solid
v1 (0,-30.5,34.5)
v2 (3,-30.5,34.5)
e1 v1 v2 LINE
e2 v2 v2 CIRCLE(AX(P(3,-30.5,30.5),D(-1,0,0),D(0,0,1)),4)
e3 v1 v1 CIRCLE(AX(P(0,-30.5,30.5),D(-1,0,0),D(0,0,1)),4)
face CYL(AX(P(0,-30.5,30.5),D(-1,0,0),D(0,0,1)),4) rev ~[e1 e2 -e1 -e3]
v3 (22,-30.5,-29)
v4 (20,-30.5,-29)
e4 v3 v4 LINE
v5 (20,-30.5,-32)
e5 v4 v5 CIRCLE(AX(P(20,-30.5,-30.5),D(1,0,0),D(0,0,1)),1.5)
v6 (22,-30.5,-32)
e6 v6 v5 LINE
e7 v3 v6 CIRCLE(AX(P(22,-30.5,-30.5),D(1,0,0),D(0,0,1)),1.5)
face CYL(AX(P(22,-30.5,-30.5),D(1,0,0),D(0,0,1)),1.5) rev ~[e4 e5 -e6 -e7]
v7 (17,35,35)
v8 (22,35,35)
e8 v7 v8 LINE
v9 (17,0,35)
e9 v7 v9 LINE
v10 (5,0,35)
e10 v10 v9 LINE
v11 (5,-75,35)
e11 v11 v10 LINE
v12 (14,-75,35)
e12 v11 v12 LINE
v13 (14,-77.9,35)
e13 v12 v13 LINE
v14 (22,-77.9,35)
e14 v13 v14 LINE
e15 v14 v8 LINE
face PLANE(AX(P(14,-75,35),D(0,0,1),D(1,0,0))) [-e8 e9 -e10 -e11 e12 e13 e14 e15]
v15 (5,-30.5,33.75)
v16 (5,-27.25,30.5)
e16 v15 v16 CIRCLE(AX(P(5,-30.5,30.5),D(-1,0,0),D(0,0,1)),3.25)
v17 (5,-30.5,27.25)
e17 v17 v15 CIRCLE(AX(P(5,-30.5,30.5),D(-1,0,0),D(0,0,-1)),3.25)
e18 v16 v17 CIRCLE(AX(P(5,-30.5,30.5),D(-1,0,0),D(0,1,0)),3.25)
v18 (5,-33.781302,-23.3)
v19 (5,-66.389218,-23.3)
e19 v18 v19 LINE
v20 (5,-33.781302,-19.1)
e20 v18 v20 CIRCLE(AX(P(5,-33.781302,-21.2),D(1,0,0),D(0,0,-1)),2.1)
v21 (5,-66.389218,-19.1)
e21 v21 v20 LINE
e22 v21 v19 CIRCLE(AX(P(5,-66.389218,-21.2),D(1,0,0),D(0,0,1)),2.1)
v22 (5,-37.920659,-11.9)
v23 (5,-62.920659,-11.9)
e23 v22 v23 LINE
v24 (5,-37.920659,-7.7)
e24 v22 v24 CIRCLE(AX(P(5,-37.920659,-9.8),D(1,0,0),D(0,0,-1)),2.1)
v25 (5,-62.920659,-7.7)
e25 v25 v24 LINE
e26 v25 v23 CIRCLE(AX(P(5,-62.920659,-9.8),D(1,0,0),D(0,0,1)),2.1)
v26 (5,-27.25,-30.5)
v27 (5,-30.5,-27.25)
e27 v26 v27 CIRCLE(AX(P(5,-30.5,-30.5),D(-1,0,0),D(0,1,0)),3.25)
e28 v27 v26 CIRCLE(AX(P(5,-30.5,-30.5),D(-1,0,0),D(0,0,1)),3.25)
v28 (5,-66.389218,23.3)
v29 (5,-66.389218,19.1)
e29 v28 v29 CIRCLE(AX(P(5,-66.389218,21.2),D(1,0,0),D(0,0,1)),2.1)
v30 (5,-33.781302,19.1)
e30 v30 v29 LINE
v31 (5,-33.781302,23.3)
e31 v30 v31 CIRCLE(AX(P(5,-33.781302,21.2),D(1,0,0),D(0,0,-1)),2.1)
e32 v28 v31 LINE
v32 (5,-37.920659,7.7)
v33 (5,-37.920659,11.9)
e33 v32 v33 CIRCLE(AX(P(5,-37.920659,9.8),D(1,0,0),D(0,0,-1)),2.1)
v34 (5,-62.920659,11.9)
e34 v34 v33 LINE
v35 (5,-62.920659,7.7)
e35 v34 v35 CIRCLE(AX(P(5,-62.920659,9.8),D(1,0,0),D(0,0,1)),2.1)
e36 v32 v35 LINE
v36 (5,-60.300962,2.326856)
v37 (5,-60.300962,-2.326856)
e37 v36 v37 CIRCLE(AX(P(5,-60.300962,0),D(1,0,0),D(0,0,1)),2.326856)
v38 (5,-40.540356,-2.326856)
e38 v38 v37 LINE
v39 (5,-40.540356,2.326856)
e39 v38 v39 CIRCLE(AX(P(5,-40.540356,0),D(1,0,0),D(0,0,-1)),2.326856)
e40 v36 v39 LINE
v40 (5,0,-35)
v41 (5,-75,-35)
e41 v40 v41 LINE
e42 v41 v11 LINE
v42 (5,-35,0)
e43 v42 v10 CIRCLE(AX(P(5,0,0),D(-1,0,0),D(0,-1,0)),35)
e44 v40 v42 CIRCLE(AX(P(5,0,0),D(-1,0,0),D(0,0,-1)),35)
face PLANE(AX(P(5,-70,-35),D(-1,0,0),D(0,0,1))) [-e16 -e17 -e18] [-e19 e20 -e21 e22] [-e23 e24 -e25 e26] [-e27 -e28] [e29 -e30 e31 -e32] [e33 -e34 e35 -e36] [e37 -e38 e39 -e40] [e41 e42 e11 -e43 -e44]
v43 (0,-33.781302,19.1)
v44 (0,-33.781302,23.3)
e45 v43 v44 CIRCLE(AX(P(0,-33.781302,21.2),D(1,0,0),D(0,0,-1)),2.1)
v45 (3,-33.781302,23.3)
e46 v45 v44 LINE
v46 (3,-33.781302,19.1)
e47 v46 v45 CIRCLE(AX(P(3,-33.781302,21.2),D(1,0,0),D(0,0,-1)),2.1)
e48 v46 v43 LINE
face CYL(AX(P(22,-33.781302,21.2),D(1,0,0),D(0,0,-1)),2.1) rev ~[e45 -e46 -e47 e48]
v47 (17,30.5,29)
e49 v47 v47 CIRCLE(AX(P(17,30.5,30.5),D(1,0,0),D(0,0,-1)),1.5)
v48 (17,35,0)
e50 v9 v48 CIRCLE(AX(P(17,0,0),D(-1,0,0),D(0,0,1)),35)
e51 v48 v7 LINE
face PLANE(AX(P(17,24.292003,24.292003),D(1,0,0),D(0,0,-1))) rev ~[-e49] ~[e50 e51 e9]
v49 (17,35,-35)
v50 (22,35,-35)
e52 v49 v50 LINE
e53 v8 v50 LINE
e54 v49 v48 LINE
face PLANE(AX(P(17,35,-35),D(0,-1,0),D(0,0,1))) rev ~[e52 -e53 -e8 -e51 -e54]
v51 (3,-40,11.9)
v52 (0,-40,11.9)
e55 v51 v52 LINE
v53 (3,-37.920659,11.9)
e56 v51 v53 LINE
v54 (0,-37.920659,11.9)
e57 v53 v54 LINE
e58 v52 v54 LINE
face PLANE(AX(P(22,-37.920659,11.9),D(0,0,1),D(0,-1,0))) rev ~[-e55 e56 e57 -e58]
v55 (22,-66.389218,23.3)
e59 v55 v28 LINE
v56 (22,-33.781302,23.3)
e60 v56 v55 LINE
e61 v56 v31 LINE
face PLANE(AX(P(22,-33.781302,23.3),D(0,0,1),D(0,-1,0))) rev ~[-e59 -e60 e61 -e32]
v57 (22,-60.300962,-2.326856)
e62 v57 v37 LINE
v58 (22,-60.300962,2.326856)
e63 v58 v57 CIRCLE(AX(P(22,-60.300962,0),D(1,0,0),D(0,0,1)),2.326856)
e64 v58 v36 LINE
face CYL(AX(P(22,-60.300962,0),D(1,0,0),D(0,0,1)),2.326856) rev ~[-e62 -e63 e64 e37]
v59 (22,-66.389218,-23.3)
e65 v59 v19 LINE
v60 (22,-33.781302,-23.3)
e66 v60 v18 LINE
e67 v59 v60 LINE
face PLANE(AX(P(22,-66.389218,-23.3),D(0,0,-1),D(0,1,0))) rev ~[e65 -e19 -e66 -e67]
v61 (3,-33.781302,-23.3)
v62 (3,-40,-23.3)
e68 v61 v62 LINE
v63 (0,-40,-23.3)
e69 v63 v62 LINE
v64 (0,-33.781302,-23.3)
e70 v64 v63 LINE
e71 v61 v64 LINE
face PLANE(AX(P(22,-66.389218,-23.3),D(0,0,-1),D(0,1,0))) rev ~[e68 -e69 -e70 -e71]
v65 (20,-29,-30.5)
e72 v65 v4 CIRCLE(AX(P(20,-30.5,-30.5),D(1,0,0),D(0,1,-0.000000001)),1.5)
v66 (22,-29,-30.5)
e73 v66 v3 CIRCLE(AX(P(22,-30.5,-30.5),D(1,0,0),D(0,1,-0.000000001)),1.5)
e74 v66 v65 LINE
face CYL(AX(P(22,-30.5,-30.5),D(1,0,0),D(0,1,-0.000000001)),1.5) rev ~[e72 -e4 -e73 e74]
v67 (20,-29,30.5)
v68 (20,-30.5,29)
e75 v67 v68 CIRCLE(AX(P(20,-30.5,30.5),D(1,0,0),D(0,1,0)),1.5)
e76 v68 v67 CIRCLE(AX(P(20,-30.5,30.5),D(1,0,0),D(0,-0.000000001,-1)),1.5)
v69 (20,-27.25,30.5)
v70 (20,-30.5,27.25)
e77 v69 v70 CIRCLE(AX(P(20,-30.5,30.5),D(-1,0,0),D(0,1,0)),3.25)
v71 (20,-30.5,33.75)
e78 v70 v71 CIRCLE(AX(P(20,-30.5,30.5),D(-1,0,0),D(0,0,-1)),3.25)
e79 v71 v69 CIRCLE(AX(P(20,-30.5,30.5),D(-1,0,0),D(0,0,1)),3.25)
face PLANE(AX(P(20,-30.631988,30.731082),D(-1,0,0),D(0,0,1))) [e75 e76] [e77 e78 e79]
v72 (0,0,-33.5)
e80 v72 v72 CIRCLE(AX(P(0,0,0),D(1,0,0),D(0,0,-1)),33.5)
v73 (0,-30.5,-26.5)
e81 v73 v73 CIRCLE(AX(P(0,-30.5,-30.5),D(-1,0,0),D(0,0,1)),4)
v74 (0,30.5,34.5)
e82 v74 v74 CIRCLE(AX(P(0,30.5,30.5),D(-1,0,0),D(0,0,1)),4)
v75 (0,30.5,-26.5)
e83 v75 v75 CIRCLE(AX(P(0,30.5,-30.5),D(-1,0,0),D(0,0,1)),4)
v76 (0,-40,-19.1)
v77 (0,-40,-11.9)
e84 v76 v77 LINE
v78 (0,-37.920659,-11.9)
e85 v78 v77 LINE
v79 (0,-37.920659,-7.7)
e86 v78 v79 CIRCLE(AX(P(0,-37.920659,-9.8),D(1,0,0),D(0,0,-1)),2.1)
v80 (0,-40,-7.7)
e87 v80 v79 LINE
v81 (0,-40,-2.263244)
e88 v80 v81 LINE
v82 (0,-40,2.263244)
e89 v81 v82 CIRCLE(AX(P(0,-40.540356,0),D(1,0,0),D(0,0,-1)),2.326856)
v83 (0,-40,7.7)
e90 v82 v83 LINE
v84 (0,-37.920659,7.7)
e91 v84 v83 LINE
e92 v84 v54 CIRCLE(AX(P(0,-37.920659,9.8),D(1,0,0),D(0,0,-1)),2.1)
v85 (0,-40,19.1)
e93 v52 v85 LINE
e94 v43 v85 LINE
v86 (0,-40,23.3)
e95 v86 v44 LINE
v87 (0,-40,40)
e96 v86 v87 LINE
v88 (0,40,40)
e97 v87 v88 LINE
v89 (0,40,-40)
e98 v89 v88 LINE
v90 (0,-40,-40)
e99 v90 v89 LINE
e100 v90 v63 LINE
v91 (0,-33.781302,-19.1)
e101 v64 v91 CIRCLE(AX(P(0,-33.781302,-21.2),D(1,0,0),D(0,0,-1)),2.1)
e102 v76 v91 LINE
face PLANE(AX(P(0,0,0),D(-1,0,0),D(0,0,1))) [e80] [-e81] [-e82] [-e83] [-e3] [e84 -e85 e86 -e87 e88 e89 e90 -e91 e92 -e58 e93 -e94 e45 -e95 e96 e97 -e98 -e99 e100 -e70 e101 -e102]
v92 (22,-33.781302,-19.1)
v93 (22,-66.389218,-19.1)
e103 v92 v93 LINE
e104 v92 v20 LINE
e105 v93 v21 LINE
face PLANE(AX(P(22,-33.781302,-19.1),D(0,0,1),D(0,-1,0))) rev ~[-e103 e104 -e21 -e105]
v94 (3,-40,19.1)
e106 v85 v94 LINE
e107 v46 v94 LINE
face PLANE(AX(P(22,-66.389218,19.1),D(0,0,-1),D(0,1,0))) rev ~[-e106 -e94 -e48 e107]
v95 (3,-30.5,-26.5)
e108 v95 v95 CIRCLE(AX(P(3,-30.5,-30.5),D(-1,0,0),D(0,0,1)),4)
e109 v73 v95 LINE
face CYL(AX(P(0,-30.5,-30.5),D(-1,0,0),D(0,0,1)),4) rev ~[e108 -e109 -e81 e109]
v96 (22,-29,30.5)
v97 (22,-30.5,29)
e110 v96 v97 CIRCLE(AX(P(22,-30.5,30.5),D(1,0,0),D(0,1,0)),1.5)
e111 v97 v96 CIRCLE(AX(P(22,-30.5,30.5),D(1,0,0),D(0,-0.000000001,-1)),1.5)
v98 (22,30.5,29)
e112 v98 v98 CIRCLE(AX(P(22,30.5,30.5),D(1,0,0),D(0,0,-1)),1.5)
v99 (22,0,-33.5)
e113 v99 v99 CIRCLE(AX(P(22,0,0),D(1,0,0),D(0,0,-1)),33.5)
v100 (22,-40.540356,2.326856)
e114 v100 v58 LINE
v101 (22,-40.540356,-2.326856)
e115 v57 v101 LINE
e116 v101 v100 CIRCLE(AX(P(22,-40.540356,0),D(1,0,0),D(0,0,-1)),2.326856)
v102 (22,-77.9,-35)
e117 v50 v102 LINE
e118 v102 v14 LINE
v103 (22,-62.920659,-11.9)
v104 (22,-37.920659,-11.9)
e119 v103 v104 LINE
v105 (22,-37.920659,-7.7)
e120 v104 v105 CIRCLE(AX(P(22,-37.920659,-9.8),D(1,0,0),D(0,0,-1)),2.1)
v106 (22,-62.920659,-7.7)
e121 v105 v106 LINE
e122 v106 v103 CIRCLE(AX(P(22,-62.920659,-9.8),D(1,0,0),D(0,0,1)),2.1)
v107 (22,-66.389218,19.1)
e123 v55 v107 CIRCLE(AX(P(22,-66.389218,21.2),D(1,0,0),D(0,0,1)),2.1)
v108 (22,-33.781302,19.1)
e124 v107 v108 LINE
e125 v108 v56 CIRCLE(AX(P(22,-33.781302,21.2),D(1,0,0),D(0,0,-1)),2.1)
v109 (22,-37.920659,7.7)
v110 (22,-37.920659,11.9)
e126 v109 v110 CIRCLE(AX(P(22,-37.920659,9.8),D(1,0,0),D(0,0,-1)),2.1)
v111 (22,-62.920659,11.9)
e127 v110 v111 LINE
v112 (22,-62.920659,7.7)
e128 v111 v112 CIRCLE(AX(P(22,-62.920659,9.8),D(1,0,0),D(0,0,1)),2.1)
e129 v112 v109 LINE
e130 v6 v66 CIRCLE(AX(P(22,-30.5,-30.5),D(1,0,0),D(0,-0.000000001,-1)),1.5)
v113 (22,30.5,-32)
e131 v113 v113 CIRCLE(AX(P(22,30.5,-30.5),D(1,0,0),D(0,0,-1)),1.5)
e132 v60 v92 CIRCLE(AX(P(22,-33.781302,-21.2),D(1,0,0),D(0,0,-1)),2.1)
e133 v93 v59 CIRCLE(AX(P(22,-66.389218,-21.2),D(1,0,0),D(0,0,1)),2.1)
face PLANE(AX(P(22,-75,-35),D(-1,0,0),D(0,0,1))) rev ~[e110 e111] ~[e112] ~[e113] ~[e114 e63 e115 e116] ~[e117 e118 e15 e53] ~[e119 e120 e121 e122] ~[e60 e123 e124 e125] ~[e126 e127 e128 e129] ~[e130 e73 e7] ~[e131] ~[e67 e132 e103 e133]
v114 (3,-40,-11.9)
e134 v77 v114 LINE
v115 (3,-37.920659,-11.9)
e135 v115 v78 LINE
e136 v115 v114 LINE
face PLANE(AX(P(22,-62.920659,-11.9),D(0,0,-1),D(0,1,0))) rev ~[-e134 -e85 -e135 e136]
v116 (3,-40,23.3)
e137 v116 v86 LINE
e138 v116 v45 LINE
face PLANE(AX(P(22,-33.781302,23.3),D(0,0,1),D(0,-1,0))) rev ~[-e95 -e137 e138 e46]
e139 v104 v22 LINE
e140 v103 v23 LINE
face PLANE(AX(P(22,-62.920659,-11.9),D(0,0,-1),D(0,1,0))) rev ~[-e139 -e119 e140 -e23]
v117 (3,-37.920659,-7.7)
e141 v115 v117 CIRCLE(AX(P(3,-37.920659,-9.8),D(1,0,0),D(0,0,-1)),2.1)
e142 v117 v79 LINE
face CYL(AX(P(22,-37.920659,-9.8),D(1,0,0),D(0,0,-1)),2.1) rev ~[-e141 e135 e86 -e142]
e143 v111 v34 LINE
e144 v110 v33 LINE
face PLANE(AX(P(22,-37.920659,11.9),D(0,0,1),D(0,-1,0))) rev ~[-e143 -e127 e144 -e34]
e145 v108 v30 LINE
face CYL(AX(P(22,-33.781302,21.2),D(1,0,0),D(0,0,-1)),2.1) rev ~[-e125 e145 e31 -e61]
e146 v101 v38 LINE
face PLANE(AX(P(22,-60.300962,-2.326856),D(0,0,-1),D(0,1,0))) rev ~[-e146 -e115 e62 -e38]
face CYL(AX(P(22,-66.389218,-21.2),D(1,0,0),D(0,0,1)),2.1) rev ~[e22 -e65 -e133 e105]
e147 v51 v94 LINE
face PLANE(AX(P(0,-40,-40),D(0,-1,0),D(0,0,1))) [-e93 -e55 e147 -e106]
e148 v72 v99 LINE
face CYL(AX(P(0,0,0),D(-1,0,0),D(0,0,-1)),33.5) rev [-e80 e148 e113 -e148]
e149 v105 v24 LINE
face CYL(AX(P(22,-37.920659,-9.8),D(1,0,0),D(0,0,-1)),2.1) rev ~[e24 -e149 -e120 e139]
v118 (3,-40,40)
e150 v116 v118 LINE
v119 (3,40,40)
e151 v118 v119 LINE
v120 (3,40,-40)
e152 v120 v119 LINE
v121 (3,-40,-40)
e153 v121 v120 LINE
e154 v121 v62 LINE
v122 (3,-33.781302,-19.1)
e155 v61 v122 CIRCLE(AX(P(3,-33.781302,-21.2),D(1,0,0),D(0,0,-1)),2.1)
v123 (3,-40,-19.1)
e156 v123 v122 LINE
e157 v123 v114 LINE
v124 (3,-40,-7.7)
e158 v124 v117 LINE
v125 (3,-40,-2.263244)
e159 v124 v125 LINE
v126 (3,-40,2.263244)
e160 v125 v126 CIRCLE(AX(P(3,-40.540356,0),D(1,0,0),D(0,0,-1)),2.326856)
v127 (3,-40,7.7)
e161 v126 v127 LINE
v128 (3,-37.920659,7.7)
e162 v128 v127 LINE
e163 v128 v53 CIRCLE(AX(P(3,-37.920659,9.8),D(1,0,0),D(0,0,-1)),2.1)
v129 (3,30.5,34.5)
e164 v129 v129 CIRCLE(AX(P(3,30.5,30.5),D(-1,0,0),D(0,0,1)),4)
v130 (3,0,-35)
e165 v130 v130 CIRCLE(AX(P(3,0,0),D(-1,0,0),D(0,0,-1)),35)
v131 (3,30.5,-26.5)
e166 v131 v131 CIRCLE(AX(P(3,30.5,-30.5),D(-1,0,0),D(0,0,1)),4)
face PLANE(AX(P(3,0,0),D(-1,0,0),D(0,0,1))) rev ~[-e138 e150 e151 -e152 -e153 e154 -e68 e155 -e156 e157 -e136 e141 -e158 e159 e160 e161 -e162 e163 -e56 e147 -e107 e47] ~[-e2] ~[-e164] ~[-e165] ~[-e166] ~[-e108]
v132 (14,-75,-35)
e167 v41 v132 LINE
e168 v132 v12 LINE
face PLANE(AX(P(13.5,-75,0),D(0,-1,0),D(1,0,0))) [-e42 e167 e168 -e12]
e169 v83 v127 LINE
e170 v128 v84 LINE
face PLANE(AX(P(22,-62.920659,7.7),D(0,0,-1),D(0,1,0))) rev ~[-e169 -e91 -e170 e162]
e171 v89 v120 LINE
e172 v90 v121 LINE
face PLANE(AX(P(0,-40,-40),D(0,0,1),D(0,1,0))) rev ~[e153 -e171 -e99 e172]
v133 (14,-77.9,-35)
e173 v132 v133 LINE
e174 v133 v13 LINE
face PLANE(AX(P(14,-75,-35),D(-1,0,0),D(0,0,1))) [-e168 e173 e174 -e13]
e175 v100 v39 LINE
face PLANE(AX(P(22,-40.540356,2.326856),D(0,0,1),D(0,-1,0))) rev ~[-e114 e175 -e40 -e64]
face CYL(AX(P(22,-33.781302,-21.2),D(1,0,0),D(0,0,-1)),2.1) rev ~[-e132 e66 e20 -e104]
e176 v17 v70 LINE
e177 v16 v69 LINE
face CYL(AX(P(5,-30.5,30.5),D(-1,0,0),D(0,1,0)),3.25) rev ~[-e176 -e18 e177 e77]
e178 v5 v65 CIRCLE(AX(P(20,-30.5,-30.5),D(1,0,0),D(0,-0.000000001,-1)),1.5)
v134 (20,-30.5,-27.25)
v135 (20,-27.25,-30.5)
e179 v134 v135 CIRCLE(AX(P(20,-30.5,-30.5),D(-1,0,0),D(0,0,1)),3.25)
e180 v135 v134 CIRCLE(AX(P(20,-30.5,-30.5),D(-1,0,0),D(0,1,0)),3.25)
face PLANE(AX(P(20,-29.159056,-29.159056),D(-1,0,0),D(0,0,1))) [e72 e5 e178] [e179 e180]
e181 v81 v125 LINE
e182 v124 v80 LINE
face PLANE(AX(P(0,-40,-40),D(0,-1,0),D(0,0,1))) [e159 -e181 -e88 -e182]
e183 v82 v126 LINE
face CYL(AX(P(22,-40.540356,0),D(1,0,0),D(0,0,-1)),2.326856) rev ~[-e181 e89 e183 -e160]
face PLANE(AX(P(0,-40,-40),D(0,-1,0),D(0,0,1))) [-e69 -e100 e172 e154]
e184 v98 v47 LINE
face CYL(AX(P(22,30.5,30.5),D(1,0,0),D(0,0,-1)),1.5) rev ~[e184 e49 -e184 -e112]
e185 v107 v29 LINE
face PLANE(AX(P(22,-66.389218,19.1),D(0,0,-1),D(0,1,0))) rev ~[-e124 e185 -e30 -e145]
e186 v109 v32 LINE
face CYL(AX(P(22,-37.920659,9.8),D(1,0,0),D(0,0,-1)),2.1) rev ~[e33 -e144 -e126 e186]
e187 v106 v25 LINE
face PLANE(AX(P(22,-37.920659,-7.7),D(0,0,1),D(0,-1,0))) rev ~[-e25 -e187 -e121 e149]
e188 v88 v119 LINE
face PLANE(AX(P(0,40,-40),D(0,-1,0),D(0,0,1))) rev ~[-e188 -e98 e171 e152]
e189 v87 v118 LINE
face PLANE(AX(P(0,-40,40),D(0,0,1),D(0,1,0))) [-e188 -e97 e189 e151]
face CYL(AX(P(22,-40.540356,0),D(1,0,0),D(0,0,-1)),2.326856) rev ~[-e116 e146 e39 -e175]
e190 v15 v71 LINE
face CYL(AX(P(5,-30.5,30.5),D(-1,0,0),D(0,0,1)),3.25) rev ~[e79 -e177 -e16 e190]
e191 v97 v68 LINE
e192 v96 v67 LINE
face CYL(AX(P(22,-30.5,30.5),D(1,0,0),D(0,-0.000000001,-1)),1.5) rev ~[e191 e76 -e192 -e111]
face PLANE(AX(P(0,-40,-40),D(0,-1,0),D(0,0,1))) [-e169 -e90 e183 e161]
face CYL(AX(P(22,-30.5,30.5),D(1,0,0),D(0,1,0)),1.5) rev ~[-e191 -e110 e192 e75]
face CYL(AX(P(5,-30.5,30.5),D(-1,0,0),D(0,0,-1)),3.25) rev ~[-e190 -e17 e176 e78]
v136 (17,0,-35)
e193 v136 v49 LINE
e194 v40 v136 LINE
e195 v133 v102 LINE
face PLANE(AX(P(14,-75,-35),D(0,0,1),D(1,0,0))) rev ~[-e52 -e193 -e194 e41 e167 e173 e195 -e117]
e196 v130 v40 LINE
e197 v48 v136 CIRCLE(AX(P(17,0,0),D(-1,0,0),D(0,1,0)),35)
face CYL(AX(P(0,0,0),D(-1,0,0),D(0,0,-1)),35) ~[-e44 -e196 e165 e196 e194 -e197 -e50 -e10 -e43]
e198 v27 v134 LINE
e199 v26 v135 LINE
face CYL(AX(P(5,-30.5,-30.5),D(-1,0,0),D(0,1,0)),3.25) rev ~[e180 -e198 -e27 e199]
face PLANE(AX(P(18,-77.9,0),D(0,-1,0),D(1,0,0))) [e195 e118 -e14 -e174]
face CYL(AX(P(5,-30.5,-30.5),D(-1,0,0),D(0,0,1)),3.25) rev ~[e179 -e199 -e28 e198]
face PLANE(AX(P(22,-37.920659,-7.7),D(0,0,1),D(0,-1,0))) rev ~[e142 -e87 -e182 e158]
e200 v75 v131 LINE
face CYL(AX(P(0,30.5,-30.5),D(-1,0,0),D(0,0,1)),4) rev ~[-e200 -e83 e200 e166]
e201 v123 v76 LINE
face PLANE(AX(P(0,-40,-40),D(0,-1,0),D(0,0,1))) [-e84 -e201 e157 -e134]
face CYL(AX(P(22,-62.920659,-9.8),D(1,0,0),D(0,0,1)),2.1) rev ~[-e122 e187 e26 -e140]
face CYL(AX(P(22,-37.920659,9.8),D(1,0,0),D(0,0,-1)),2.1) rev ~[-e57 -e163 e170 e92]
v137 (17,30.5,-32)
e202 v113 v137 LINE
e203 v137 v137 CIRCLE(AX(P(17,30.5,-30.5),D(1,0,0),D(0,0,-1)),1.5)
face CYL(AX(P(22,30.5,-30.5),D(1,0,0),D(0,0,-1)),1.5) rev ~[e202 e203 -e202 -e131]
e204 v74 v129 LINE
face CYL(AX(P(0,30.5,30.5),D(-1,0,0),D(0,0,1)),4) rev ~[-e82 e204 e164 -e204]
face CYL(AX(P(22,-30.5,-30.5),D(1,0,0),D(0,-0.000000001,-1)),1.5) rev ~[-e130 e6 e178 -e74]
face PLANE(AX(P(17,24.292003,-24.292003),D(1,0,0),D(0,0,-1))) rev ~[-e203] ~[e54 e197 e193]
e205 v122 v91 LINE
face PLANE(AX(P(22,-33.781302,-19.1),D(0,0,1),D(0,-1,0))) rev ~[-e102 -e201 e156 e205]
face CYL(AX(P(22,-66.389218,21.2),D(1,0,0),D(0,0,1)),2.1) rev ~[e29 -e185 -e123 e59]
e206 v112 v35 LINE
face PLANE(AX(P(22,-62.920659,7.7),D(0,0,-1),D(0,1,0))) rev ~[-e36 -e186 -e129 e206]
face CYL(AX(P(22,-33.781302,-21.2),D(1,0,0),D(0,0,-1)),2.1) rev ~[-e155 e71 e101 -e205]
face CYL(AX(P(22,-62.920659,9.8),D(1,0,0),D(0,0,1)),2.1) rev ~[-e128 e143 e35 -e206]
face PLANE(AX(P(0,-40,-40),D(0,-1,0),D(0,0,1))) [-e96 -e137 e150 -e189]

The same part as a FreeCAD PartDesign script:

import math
import FreeCAD as App
import Part
import Sketcher

V = App.Vector


def add_polygon(sketch, points):
    """Adds a closed chain of lines whose ends are joined by coincident constraints."""
    first, n = sketch.GeometryCount, len(points)
    for a, b in zip(points, points[1:] + points[:1]):
        sketch.addGeometry(Part.LineSegment(App.Vector(*a, 0), App.Vector(*b, 0)), False)
    for i in range(n):
        sketch.addConstraint(Sketcher.Constraint("Coincident", first + i, 2, first + (i + 1) % n, 1))

doc = App.newDocument("Part")
body = doc.addObject("PartDesign::Body", "Body")

# Sketch on YZ plane
sketch1 = body.newObject("Sketcher::SketchObject", "Sketch")
sketch1.AttachmentSupport = (doc.getObject("YZ_Plane"), [""])
sketch1.MapMode = "FlatFace"
sketch1.addGeometry(Part.Circle(V(0, 0, 0), V(0, 0, 1), 35), False)
sketch1.addGeometry(Part.Circle(V(0, 0, 0), V(0, 0, 1), 34), False)
sketch1.addConstraint(Sketcher.Constraint("Coincident", 0, 3, -1, 1))
sketch1.addConstraint(Sketcher.Constraint("Coincident", 1, 3, -1, 1))
sketch1.addConstraint(Sketcher.Constraint("Diameter", 0, 70.0))
sketch1.addConstraint(Sketcher.Constraint("Diameter", 1, 67.0))
pad1 = body.newObject("PartDesign::Pad", "Pad")
pad1.Profile = sketch1
pad1.Length = 22

# Sketch on YZ plane
sketch2 = body.newObject("Sketcher::SketchObject", "Sketch001")
sketch2.AttachmentSupport = (doc.getObject("YZ_Plane"), [""])
sketch2.MapMode = "FlatFace"
sketch2.AttachmentOffset = App.Placement(V(0, 0, 5), App.Rotation())
sketch2.addGeometry(Part.ArcOfCircle(Part.Circle(V(0, 0, 0), V(0, 0, 1), 35), math.radians(90), math.radians(180)), False)
sketch2.addGeometry(Part.LineSegment(V(0, 35, 0), V(-70, 35, 0)), False)
sketch2.addGeometry(Part.LineSegment(V(-70, 35, 0), V(-70, -35, 0)), False)
sketch2.addGeometry(Part.LineSegment(V(-70, -35, 0), V(0, -35, 0)), False)
sketch2.addGeometry(Part.ArcOfCircle(Part.Circle(V(0, 0, 0), V(0, 0, 1), 35), math.radians(180), math.radians(270)), False)
sketch2.addConstraint(Sketcher.Constraint("Tangent", 0, 1, 1, 1))
sketch2.addConstraint(Sketcher.Constraint("Coincident", 1, 2, 2, 1))
sketch2.addConstraint(Sketcher.Constraint("Coincident", 2, 2, 3, 1))
sketch2.addConstraint(Sketcher.Constraint("Tangent", 3, 2, 4, 2))
sketch2.addConstraint(Sketcher.Constraint("Tangent", 4, 1, 0, 2))
sketch2.addConstraint(Sketcher.Constraint("Horizontal", 1))
sketch2.addConstraint(Sketcher.Constraint("Vertical", 2))
sketch2.addConstraint(Sketcher.Constraint("Horizontal", 3))
sketch2.addConstraint(Sketcher.Constraint("Coincident", 0, 3, -1, 1))
sketch2.addConstraint(Sketcher.Constraint("Equal", 0, 4))
sketch2.addConstraint(Sketcher.Constraint("PointOnObject", 4, 1, -1))
sketch2.addConstraint(Sketcher.Constraint("Equal", 3, 2))
sketch2.addConstraint(Sketcher.Constraint("Radius", 0, 35.0))
pad2 = body.newObject("PartDesign::Pad", "Pad001")
pad2.Profile = sketch2
pad2.Length = 17

# Sketch on YZ plane
sketch3 = body.newObject("Sketcher::SketchObject", "Sketch002")
sketch3.AttachmentSupport = (doc.getObject("YZ_Plane"), [""])
sketch3.MapMode = "FlatFace"
sketch3.AttachmentOffset = App.Placement(V(0, 0, 17), App.Rotation())
sketch3.addGeometry(Part.LineSegment(V(35, -35, 0), V(35, 0, 0)), False)
sketch3.addGeometry(Part.ArcOfCircle(Part.Circle(V(0, 0, 0), V(0, 0, 1), 35), math.radians(-90), math.radians(0)), False)
sketch3.addGeometry(Part.LineSegment(V(0, -35, 0), V(35, -35, 0)), False)
sketch3.addGeometry(Part.LineSegment(V(35, 35, 0), V(0, 35, 0)), False)
sketch3.addGeometry(Part.ArcOfCircle(Part.Circle(V(0, 0, 0), V(0, 0, 1), 35), math.radians(0), math.radians(90)), False)
sketch3.addGeometry(Part.LineSegment(V(35, 0, 0), V(35, 35, 0)), False)
sketch3.addConstraint(Sketcher.Constraint("Tangent", 0, 2, 1, 2))
sketch3.addConstraint(Sketcher.Constraint("Tangent", 1, 1, 2, 1))
sketch3.addConstraint(Sketcher.Constraint("Coincident", 2, 2, 0, 1))
sketch3.addConstraint(Sketcher.Constraint("Tangent", 3, 2, 4, 2))
sketch3.addConstraint(Sketcher.Constraint("Tangent", 4, 1, 5, 1))
sketch3.addConstraint(Sketcher.Constraint("Coincident", 5, 2, 3, 1))
sketch3.addConstraint(Sketcher.Constraint("Vertical", 0))
sketch3.addConstraint(Sketcher.Constraint("Horizontal", 2))
sketch3.addConstraint(Sketcher.Constraint("Horizontal", 3))
sketch3.addConstraint(Sketcher.Constraint("Vertical", 5))
sketch3.addConstraint(Sketcher.Constraint("Coincident", 1, 3, -1, 1))
sketch3.addConstraint(Sketcher.Constraint("Coincident", 4, 3, -1, 1))
sketch3.addConstraint(Sketcher.Constraint("Equal", 1, 4))
sketch3.addConstraint(Sketcher.Constraint("Radius", 1, 35.0))
pad3 = body.newObject("PartDesign::Pad", "Pad002")
pad3.Profile = sketch3
pad3.Length = 5

# Sketch on XZ plane
sketch4 = body.newObject("Sketcher::SketchObject", "Sketch003")
sketch4.AttachmentSupport = (doc.getObject("XZ_Plane"), [""])
sketch4.MapMode = "FlatFace"
sketch4.AttachmentOffset = App.Placement(V(0, 0, 70), App.Rotation())
add_polygon(sketch4, [(5, 35), (5, -35), (22, -35), (22, 35)])  # lines 0-3
sketch4.addConstraint(Sketcher.Constraint("Vertical", 0))
sketch4.addConstraint(Sketcher.Constraint("Horizontal", 1))
sketch4.addConstraint(Sketcher.Constraint("Vertical", 2))
sketch4.addConstraint(Sketcher.Constraint("Horizontal", 3))
sketch4.addConstraint(Sketcher.Constraint("DistanceX", 1, 1, 1, 2, 17.0))
sketch4.addConstraint(Sketcher.Constraint("DistanceY", 0, 2, 0, 1, 70.0))
sketch4.addConstraint(Sketcher.Constraint("DistanceX", -1, 1, 0, 2, 5.0))
sketch4.addConstraint(Sketcher.Constraint("DistanceY", 0, 2, -1, 1, 35.0))
pad4 = body.newObject("PartDesign::Pad", "Pad003")
pad4.Profile = sketch4
pad4.Length = 5

# Sketch on XZ plane
sketch5 = body.newObject("Sketcher::SketchObject", "Sketch004")
sketch5.AttachmentSupport = (doc.getObject("XZ_Plane"), [""])
sketch5.MapMode = "FlatFace"
sketch5.AttachmentOffset = App.Placement(V(0, 0, 75), App.Rotation())
add_polygon(sketch5, [(14, 35), (14, -35), (22, -35), (22, 35)])  # lines 0-3
sketch5.addConstraint(Sketcher.Constraint("Vertical", 0))
sketch5.addConstraint(Sketcher.Constraint("Horizontal", 1))
sketch5.addConstraint(Sketcher.Constraint("Vertical", 2))
sketch5.addConstraint(Sketcher.Constraint("Horizontal", 3))
sketch5.addConstraint(Sketcher.Constraint("DistanceX", 1, 1, 1, 2, 8.0))
sketch5.addConstraint(Sketcher.Constraint("DistanceY", 0, 2, 0, 1, 70.0))
sketch5.addConstraint(Sketcher.Constraint("DistanceX", -1, 1, 0, 2, 14.0))
sketch5.addConstraint(Sketcher.Constraint("DistanceY", 0, 2, -1, 1, 35.0))
pad5 = body.newObject("PartDesign::Pad", "Pad004")
pad5.Profile = sketch5
pad5.Length = 2.9

# Sketch on YZ plane
sketch6 = body.newObject("Sketcher::SketchObject", "Sketch005")
sketch6.AttachmentSupport = (doc.getObject("YZ_Plane"), [""])
sketch6.MapMode = "FlatFace"
add_polygon(sketch6, [(40, -40), (-40, -40), (-40, 40), (40, 40)])  # lines 0-3
sketch6.addGeometry(Part.Circle(V(0, 0, 0), V(0, 0, 1), 35), False)  # 4
sketch6.addConstraint(Sketcher.Constraint("Horizontal", 0))
sketch6.addConstraint(Sketcher.Constraint("Vertical", 1))
sketch6.addConstraint(Sketcher.Constraint("Horizontal", 2))
sketch6.addConstraint(Sketcher.Constraint("Vertical", 3))
sketch6.addConstraint(Sketcher.Constraint("Coincident", 4, 3, -1, 1))
sketch6.addConstraint(Sketcher.Constraint("Symmetric", 0, 2, 2, 2, -1, 1))
sketch6.addConstraint(Sketcher.Constraint("Equal", 2, 1))
sketch6.addConstraint(Sketcher.Constraint("Diameter", 4, 70.0))
sketch6.addConstraint(Sketcher.Constraint("DistanceX", 0, 2, 0, 1, 80.0))
pad6 = body.newObject("PartDesign::Pad", "Pad005")
pad6.Profile = sketch6
pad6.Length = 3

# Sketch on YZ plane
sketch7 = body.newObject("Sketcher::SketchObject", "Sketch006")
sketch7.AttachmentSupport = (doc.getObject("YZ_Plane"), [""])
sketch7.MapMode = "FlatFace"
sketch7.AttachmentOffset = App.Placement(V(0, 0, 22), App.Rotation())
sketch7.addGeometry(Part.ArcOfCircle(Part.Circle(V(-30.5, 30.5, 0), V(0, 0, 1), 1.5), math.radians(-90), math.radians(0)), False)
sketch7.addGeometry(Part.ArcOfCircle(Part.Circle(V(-30.5, 30.5, 0), V(0, 0, 1), 1.5), math.radians(0), math.radians(270)), False)
sketch7.addGeometry(Part.ArcOfCircle(Part.Circle(V(-30.5, -30.5, 0), V(0, 0, 1), 1.5), math.radians(0), math.radians(90)), False)
sketch7.addGeometry(Part.ArcOfCircle(Part.Circle(V(-30.5, -30.5, 0), V(0, 0, 1), 1.5), math.radians(90), math.radians(270)), False)
sketch7.addGeometry(Part.ArcOfCircle(Part.Circle(V(-30.5, -30.5, 0), V(0, 0, 1), 1.5), math.radians(-90), math.radians(0)), False)
sketch7.addGeometry(Part.Circle(V(30.5, 30.5, 0), V(0, 0, 1), 1.5), False)
sketch7.addGeometry(Part.Circle(V(30.5, -30.5, 0), V(0, 0, 1), 1.5), False)
sketch7.addConstraint(Sketcher.Constraint("Tangent", 0, 1, 1, 2))
sketch7.addConstraint(Sketcher.Constraint("Coincident", 1, 1, 0, 2))
sketch7.addConstraint(Sketcher.Constraint("Tangent", 2, 2, 3, 1))
sketch7.addConstraint(Sketcher.Constraint("Tangent", 3, 2, 4, 1))
sketch7.addConstraint(Sketcher.Constraint("Tangent", 4, 2, 2, 1))
sketch7.addConstraint(Sketcher.Constraint("Equal", 1, 2))
sketch7.addConstraint(Sketcher.Constraint("Equal", 4, 5))
sketch7.addConstraint(Sketcher.Constraint("Equal", 5, 6))
sketch7.addConstraint(Sketcher.Constraint("Symmetric", 2, 3, 5, 3, -1, 1))
sketch7.addConstraint(Sketcher.Constraint("Symmetric", 0, 3, 6, 3, -1, 1))
sketch7.addConstraint(Sketcher.Constraint("Symmetric", 0, 3, 5, 3, -2))
sketch7.addConstraint(Sketcher.Constraint("Horizontal", 5, 3, 1, 1))
sketch7.addConstraint(Sketcher.Constraint("Horizontal", 6, 3, 4, 2))
sketch7.addConstraint(Sketcher.Constraint("Vertical", 4, 3, 0, 1))
sketch7.addConstraint(Sketcher.Constraint("Vertical", 0, 1, 2, 2))
sketch7.addConstraint(Sketcher.Constraint("Vertical", 2, 2, 3, 2))
sketch7.addConstraint(Sketcher.Constraint("Diameter", 5, 3.0))
sketch7.addConstraint(Sketcher.Constraint("DistanceY", -1, 1, 0, 1, 29.0))
sketch7.addConstraint(Sketcher.Constraint("DistanceX", 1, 1, -1, 1, 29.0))
pocket1 = body.newObject("PartDesign::Pocket", "Pocket")
pocket1.Profile = sketch7
pocket1.Length = 30

# Sketch on YZ plane
sketch8 = body.newObject("Sketcher::SketchObject", "Sketch007")
sketch8.AttachmentSupport = (doc.getObject("YZ_Plane"), [""])
sketch8.MapMode = "FlatFace"
sketch8.AttachmentOffset = App.Placement(V(0, 0, 5), App.Rotation())
sketch8.addGeometry(Part.ArcOfCircle(Part.Circle(V(-30.5, -30.5, 0), V(0, 0, 1), 3.2), math.radians(0), math.radians(90)), False)
sketch8.addGeometry(Part.ArcOfCircle(Part.Circle(V(-30.5, -30.5, 0), V(0, 0, 1), 3.2), math.radians(90), math.radians(360)), False)
sketch8.addGeometry(Part.ArcOfCircle(Part.Circle(V(-30.5, 30.5, 0), V(0, 0, 1), 3.2), math.radians(0), math.radians(90)), False)
sketch8.addGeometry(Part.ArcOfCircle(Part.Circle(V(-30.5, 30.5, 0), V(0, 0, 1), 3.2), math.radians(-90), math.radians(0)), False)
sketch8.addGeometry(Part.ArcOfCircle(Part.Circle(V(-30.5, 30.5, 0), V(0, 0, 1), 3.2), math.radians(90), math.radians(270)), False)
sketch8.addConstraint(Sketcher.Constraint("Tangent", 0, 1, 1, 2))
sketch8.addConstraint(Sketcher.Constraint("Coincident", 1, 1, 0, 2))
sketch8.addConstraint(Sketcher.Constraint("Tangent", 2, 1, 3, 2))
sketch8.addConstraint(Sketcher.Constraint("Tangent", 3, 1, 4, 2))
sketch8.addConstraint(Sketcher.Constraint("Tangent", 4, 1, 2, 2))
sketch8.addConstraint(Sketcher.Constraint("Equal", 1, 2))
sketch8.addConstraint(Sketcher.Constraint("Symmetric", 0, 3, 2, 3, -1))
sketch8.addConstraint(Sketcher.Constraint("Horizontal", 1, 3, 0, 1))
sketch8.addConstraint(Sketcher.Constraint("Horizontal", 4, 3, 2, 1))
sketch8.addConstraint(Sketcher.Constraint("Vertical", 4, 3, 1, 1))
sketch8.addConstraint(Sketcher.Constraint("Vertical", 1, 1, 3, 1))
sketch8.addConstraint(Sketcher.Constraint("Vertical", 3, 1, 4, 1))
sketch8.addConstraint(Sketcher.Constraint("Radius", 0, 3.25))
sketch8.addConstraint(Sketcher.Constraint("DistanceY", 0, 3, 2, 3, 61.0))
sketch8.addConstraint(Sketcher.Constraint("DistanceX", 0, 3, -1, 1, 30.5))
pocket2 = body.newObject("PartDesign::Pocket", "Pocket001")
pocket2.Profile = sketch8
pocket2.Length = 15
pocket2.Reversed = True

# Sketch on YZ plane
sketch9 = body.newObject("Sketcher::SketchObject", "Sketch008")
sketch9.AttachmentSupport = (doc.getObject("YZ_Plane"), [""])
sketch9.MapMode = "FlatFace"
sketch9.AttachmentOffset = App.Placement(V(0, 0, 22), App.Rotation())
sketch9.addGeometry(Part.LineSegment(V(-66.4, 19.1, 0), V(-33.8, 19.1, 0)), False)
sketch9.addGeometry(Part.ArcOfCircle(Part.Circle(V(-33.8, 21.2, 0), V(0, 0, 1), 2.1), math.radians(-90), math.radians(90)), False)
sketch9.addGeometry(Part.LineSegment(V(-33.8, 23.3, 0), V(-66.4, 23.3, 0)), False)
sketch9.addGeometry(Part.ArcOfCircle(Part.Circle(V(-66.4, 21.2, 0), V(0, 0, 1), 2.1), math.radians(90), math.radians(270)), False)
sketch9.addGeometry(Part.LineSegment(V(-66.4, -23.3, 0), V(-33.8, -23.3, 0)), False)
sketch9.addGeometry(Part.ArcOfCircle(Part.Circle(V(-33.8, -21.2, 0), V(0, 0, 1), 2.1), math.radians(-90), math.radians(90)), False)
sketch9.addGeometry(Part.LineSegment(V(-33.8, -19.1, 0), V(-66.4, -19.1, 0)), False)
sketch9.addGeometry(Part.ArcOfCircle(Part.Circle(V(-66.4, -21.2, 0), V(0, 0, 1), 2.1), math.radians(90), math.radians(270)), False)
sketch9.addGeometry(Part.LineSegment(V(-62.9, 7.7, 0), V(-37.9, 7.7, 0)), False)
sketch9.addGeometry(Part.ArcOfCircle(Part.Circle(V(-37.9, 9.8, 0), V(0, 0, 1), 2.1), math.radians(-90), math.radians(90)), False)
sketch9.addGeometry(Part.LineSegment(V(-37.9, 11.9, 0), V(-62.9, 11.9, 0)), False)
sketch9.addGeometry(Part.ArcOfCircle(Part.Circle(V(-62.9, 9.8, 0), V(0, 0, 1), 2.1), math.radians(90), math.radians(270)), False)
sketch9.addGeometry(Part.LineSegment(V(-60.3, -2.3, 0), V(-40.5, -2.3, 0)), False)
sketch9.addGeometry(Part.ArcOfCircle(Part.Circle(V(-40.5, 0, 0), V(0, 0, 1), 2.3), math.radians(-90), math.radians(90)), False)
sketch9.addGeometry(Part.LineSegment(V(-40.5, 2.3, 0), V(-60.3, 2.3, 0)), False)
sketch9.addGeometry(Part.ArcOfCircle(Part.Circle(V(-60.3, 0, 0), V(0, 0, 1), 2.3), math.radians(90), math.radians(270)), False)
sketch9.addGeometry(Part.LineSegment(V(-62.9, -11.9, 0), V(-37.9, -11.9, 0)), False)
sketch9.addGeometry(Part.ArcOfCircle(Part.Circle(V(-37.9, -9.8, 0), V(0, 0, 1), 2.1), math.radians(-90), math.radians(90)), False)
sketch9.addGeometry(Part.LineSegment(V(-37.9, -7.7, 0), V(-62.9, -7.7, 0)), False)
sketch9.addGeometry(Part.ArcOfCircle(Part.Circle(V(-62.9, -9.8, 0), V(0, 0, 1), 2.1), math.radians(90), math.radians(270)), False)
sketch9.addConstraint(Sketcher.Constraint("Tangent", 0, 2, 1, 1))
sketch9.addConstraint(Sketcher.Constraint("Tangent", 1, 2, 2, 1))
sketch9.addConstraint(Sketcher.Constraint("Tangent", 2, 2, 3, 1))
sketch9.addConstraint(Sketcher.Constraint("Tangent", 3, 2, 0, 1))
sketch9.addConstraint(Sketcher.Constraint("Tangent", 4, 2, 5, 1))
sketch9.addConstraint(Sketcher.Constraint("Tangent", 5, 2, 6, 1))
sketch9.addConstraint(Sketcher.Constraint("Tangent", 6, 2, 7, 1))
sketch9.addConstraint(Sketcher.Constraint("Tangent", 7, 2, 4, 1))
sketch9.addConstraint(Sketcher.Constraint("Tangent", 8, 2, 9, 1))
sketch9.addConstraint(Sketcher.Constraint("Tangent", 9, 2, 10, 1))
sketch9.addConstraint(Sketcher.Constraint("Tangent", 10, 2, 11, 1))
sketch9.addConstraint(Sketcher.Constraint("Tangent", 11, 2, 8, 1))
sketch9.addConstraint(Sketcher.Constraint("Tangent", 12, 2, 13, 1))
sketch9.addConstraint(Sketcher.Constraint("Tangent", 13, 2, 14, 1))
sketch9.addConstraint(Sketcher.Constraint("Tangent", 14, 2, 15, 1))
sketch9.addConstraint(Sketcher.Constraint("Tangent", 15, 2, 12, 1))
sketch9.addConstraint(Sketcher.Constraint("Tangent", 16, 2, 17, 1))
sketch9.addConstraint(Sketcher.Constraint("Tangent", 17, 2, 18, 1))
sketch9.addConstraint(Sketcher.Constraint("Tangent", 18, 2, 19, 1))
sketch9.addConstraint(Sketcher.Constraint("Tangent", 19, 2, 16, 1))
sketch9.addConstraint(Sketcher.Constraint("Horizontal", 0))
sketch9.addConstraint(Sketcher.Constraint("Horizontal", 2))
sketch9.addConstraint(Sketcher.Constraint("Horizontal", 4))
sketch9.addConstraint(Sketcher.Constraint("Horizontal", 6))
sketch9.addConstraint(Sketcher.Constraint("Horizontal", 8))
sketch9.addConstraint(Sketcher.Constraint("Horizontal", 10))
sketch9.addConstraint(Sketcher.Constraint("Horizontal", 12))
sketch9.addConstraint(Sketcher.Constraint("Horizontal", 14))
sketch9.addConstraint(Sketcher.Constraint("Horizontal", 16))
sketch9.addConstraint(Sketcher.Constraint("Horizontal", 18))
sketch9.addConstraint(Sketcher.Constraint("Equal", 3, 5))
sketch9.addConstraint(Sketcher.Constraint("Equal", 7, 9))
sketch9.addConstraint(Sketcher.Constraint("Equal", 11, 17))
sketch9.addConstraint(Sketcher.Constraint("Symmetric", 1, 3, 5, 3, -1))
sketch9.addConstraint(Sketcher.Constraint("Symmetric", 9, 3, 17, 3, -1))
sketch9.addConstraint(Sketcher.Constraint("PointOnObject", 13, 3, -1))
sketch9.addConstraint(Sketcher.Constraint("Vertical", 3, 3, 7, 3))
sketch9.addConstraint(Sketcher.Constraint("Vertical", 11, 3, 19, 3))
sketch9.addConstraint(Sketcher.Constraint("Radius", 1, 2.1))
sketch9.addConstraint(Sketcher.Constraint("DistanceX", 8, 1, 8, 2, 25.0))
sketch9.addConstraint(Sketcher.Constraint("DistanceY", 5, 3, 9, 3, 31.0))
sketch9.addConstraint(Sketcher.Constraint("DistanceY", -1, 1, 1, 3, 21.2))
sketch9.addConstraint(Sketcher.Constraint("Radius", 13, 2.326856))
sketch9.addConstraint(Sketcher.Constraint("DistanceX", 0, 1, 0, 2, 32.607916))
sketch9.addConstraint(Sketcher.Constraint("DistanceX", 12, 1, 12, 2, 19.760606))
sketch9.addConstraint(Sketcher.Constraint("DistanceX", 3, 3, -1, 1, 66.389218))
sketch9.addConstraint(Sketcher.Constraint("DistanceX", 9, 3, -1, 1, 37.920659))
sketch9.addConstraint(Sketcher.Constraint("DistanceX", 15, 3, -1, 1, 60.300962))
pocket3 = body.newObject("PartDesign::Pocket", "Pocket002")
pocket3.Profile = sketch9
pocket3.Length = 30

# Sketch on YZ plane
sketch10 = body.newObject("Sketcher::SketchObject", "Sketch009")
sketch10.AttachmentSupport = (doc.getObject("YZ_Plane"), [""])
sketch10.MapMode = "FlatFace"
sketch10.addGeometry(Part.Circle(V(-30.5, -30.5, 0), V(0, 0, 1), 4), False)
sketch10.addGeometry(Part.Circle(V(-30.5, 30.5, 0), V(0, 0, 1), 4), False)
sketch10.addGeometry(Part.Circle(V(30.5, -30.5, 0), V(0, 0, 1), 4), False)
sketch10.addGeometry(Part.Circle(V(30.5, 30.5, 0), V(0, 0, 1), 4), False)
sketch10.addConstraint(Sketcher.Constraint("Equal", 0, 1))
sketch10.addConstraint(Sketcher.Constraint("Equal", 1, 2))
sketch10.addConstraint(Sketcher.Constraint("Equal", 2, 3))
sketch10.addConstraint(Sketcher.Constraint("Symmetric", 1, 3, 2, 3, -1, 1))
sketch10.addConstraint(Sketcher.Constraint("Symmetric", 0, 3, 3, 3, -1, 1))
sketch10.addConstraint(Sketcher.Constraint("Symmetric", 0, 3, 2, 3, -2))
sketch10.addConstraint(Sketcher.Constraint("Diameter", 0, 8.0))
sketch10.addConstraint(Sketcher.Constraint("DistanceY", 0, 3, 1, 3, 61.0))
sketch10.addConstraint(Sketcher.Constraint("DistanceX", 0, 3, 2, 3, 61.0))
pocket4 = body.newObject("PartDesign::Pocket", "Pocket003")
pocket4.Profile = sketch10
pocket4.Length = 3
pocket4.Reversed = True

doc.recompute()
